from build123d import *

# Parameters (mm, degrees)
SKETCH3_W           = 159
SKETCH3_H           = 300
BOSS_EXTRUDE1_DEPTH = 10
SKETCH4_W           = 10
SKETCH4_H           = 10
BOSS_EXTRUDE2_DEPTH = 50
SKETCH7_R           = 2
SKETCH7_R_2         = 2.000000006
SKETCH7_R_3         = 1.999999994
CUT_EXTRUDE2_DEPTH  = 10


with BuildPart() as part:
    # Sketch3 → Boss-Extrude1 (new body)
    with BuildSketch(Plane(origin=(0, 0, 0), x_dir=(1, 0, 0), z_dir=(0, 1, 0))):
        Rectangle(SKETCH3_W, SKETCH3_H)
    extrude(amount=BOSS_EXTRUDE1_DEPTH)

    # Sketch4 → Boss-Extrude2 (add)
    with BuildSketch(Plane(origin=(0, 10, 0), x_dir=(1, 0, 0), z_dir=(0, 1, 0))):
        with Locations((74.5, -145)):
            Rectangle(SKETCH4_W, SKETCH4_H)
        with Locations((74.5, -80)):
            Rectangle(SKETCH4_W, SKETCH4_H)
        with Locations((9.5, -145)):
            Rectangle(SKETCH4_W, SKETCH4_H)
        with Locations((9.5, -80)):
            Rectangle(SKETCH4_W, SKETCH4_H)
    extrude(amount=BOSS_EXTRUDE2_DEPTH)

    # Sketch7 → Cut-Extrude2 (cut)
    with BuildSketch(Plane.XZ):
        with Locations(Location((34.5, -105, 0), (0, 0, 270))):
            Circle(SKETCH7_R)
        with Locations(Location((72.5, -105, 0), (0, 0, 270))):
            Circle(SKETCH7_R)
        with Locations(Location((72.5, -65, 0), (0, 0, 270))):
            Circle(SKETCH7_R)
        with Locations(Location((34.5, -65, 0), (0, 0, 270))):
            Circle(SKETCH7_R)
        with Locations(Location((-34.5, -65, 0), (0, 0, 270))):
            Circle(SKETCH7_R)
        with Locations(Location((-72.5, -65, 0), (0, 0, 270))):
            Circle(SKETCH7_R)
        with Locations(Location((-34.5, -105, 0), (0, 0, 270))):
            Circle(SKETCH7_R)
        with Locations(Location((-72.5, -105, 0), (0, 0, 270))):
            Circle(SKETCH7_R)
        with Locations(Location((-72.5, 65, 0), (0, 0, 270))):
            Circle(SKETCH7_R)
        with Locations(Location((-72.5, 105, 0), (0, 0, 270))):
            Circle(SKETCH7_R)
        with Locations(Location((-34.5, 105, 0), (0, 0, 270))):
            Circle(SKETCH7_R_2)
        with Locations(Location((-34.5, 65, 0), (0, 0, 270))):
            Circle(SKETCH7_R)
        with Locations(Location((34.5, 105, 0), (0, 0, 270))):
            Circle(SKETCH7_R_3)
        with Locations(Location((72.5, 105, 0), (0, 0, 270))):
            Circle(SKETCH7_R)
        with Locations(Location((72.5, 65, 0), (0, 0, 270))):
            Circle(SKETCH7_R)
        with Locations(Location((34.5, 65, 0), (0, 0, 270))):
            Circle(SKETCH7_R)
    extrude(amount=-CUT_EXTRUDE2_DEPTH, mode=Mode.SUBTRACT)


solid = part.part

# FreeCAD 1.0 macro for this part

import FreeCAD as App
import Part
import Sketcher

V = App.Vector
Q = App.Units.Quantity


def add_polygon(sketch, points):
    """Adds a closed chain of lines whose ends are joined by coincident constraints."""
    first, n = sketch.GeometryCount, len(points)
    for a, b in zip(points, points[1:] + points[:1]):
        sketch.addGeometry(Part.LineSegment(App.Vector(*a, 0), App.Vector(*b, 0)), False)
    for i in range(n):
        sketch.addConstraint(Sketcher.Constraint("Coincident", first + i, 2, first + (i + 1) % n, 1))

doc = App.newDocument("Part")
body = doc.addObject("PartDesign::Body", "Body")

# Sketch on XZ plane
sketch1 = body.newObject("Sketcher::SketchObject", "Sketch")
sketch1.AttachmentSupport = (doc.getObject("XZ_Plane"), [""])
sketch1.MapMode = "FlatFace"
add_polygon(sketch1, [(-80, -150), (-80, 150), (80, 150), (80, -150)])  # lines 0-3
sketch1.addConstraint([
    Sketcher.Constraint("Vertical", 0),
    Sketcher.Constraint("Horizontal", 1),
    Sketcher.Constraint("Vertical", 2),
    Sketcher.Constraint("Horizontal", 3),
    Sketcher.Constraint("Symmetric", 0, 2, 2, 2, -1, 1),
    Sketcher.Constraint("DistanceX", 1, 1, 1, 2, Q("159 mm")),
    Sketcher.Constraint("DistanceY", 0, 1, 0, 2, Q("300 mm")),
])
pad1 = body.newObject("PartDesign::Pad", "Pad")
pad1.Profile = sketch1
pad1.Length = 10
pad1.Reversed = True

# Sketch on XZ plane
sketch2 = body.newObject("Sketcher::SketchObject", "Sketch001")
sketch2.AttachmentSupport = (doc.getObject("XZ_Plane"), [""])
sketch2.MapMode = "FlatFace"
sketch2.AttachmentOffset = App.Placement(V(0, 0, -10), App.Rotation())
add_polygon(sketch2, [(70, 140), (70, 150), (80, 150), (80, 140)])  # lines 0-3
add_polygon(sketch2, [(70, 75), (70, 85), (80, 85), (80, 75)])  # lines 4-7
add_polygon(sketch2, [(4, 140), (4, 150), (14, 150), (14, 140)])  # lines 8-11
add_polygon(sketch2, [(4, 75), (4, 85), (14, 85), (14, 75)])  # lines 12-15
sketch2.addConstraint([
    Sketcher.Constraint("Vertical", 0),
    Sketcher.Constraint("Horizontal", 1),
    Sketcher.Constraint("Vertical", 2),
    Sketcher.Constraint("Horizontal", 3),
    Sketcher.Constraint("Vertical", 4),
    Sketcher.Constraint("Horizontal", 5),
    Sketcher.Constraint("Vertical", 6),
    Sketcher.Constraint("Horizontal", 7),
    Sketcher.Constraint("Vertical", 8),
    Sketcher.Constraint("Horizontal", 9),
    Sketcher.Constraint("Vertical", 10),
    Sketcher.Constraint("Horizontal", 11),
    Sketcher.Constraint("Vertical", 12),
    Sketcher.Constraint("Horizontal", 13),
    Sketcher.Constraint("Vertical", 14),
    Sketcher.Constraint("Horizontal", 15),
    Sketcher.Constraint("Horizontal", 1, 2, 8, 2),
    Sketcher.Constraint("Horizontal", 3, 2, 10, 2),
    Sketcher.Constraint("Horizontal", 5, 2, 12, 2),
    Sketcher.Constraint("Horizontal", 7, 2, 14, 2),
    Sketcher.Constraint("Vertical", 3, 2, 4, 2),
    Sketcher.Constraint("Vertical", 2, 2, 5, 2),
    Sketcher.Constraint("Vertical", 11, 2, 12, 2),
    Sketcher.Constraint("Vertical", 10, 2, 13, 2),
    Sketcher.Constraint("Equal", 7, 9),
    Sketcher.Constraint("Equal", 15, 0),
    Sketcher.Constraint("Equal", 2, 4),
    Sketcher.Constraint("DistanceX", 1, 1, 1, 2, Q("10 mm")),
    Sketcher.Constraint("DistanceY", -1, 1, 0, 2, Q("150 mm")),
    Sketcher.Constraint("DistanceY", -1, 1, 4, 2, Q("85 mm")),
    Sketcher.Constraint("DistanceX", 8, 2, 0, 2, Q("65 mm")),
    Sketcher.Constraint("DistanceX", -1, 1, 0, 2, Q("69.5 mm")),
])
pad2 = body.newObject("PartDesign::Pad", "Pad001")
pad2.Profile = sketch2
pad2.Length = 50
pad2.Reversed = True

# Sketch on XZ plane
sketch3 = body.newObject("Sketcher::SketchObject", "Sketch002")
sketch3.AttachmentSupport = (doc.getObject("XZ_Plane"), [""])
sketch3.MapMode = "FlatFace"
sketch3.addGeometry([
    Part.Circle(V(34.5, -105, 0), V(0, 0, 1), 2),  # 0
    Part.Circle(V(72.5, -105, 0), V(0, 0, 1), 2),  # 1
    Part.Circle(V(72.5, -65, 0), V(0, 0, 1), 2),  # 2
    Part.Circle(V(34.5, -65, 0), V(0, 0, 1), 2),  # 3
    Part.Circle(V(-34.5, -65, 0), V(0, 0, 1), 2),  # 4
    Part.Circle(V(-72.5, -65, 0), V(0, 0, 1), 2),  # 5
    Part.Circle(V(-34.5, -105, 0), V(0, 0, 1), 2),  # 6
    Part.Circle(V(-72.5, -105, 0), V(0, 0, 1), 2),  # 7
    Part.Circle(V(-72.5, 65, 0), V(0, 0, 1), 2),  # 8
    Part.Circle(V(-72.5, 105, 0), V(0, 0, 1), 2),  # 9
    Part.Circle(V(-34.5, 105, 0), V(0, 0, 1), 2),  # 10
    Part.Circle(V(-34.5, 65, 0), V(0, 0, 1), 2),  # 11
    Part.Circle(V(34.5, 105, 0), V(0, 0, 1), 2),  # 12
    Part.Circle(V(72.5, 105, 0), V(0, 0, 1), 2),  # 13
    Part.Circle(V(72.5, 65, 0), V(0, 0, 1), 2),  # 14
    Part.Circle(V(34.5, 65, 0), V(0, 0, 1), 2),  # 15
], False)
sketch3.addConstraint([
    Sketcher.Constraint("Equal", 0, 1),
    Sketcher.Constraint("Equal", 1, 2),
    Sketcher.Constraint("Equal", 2, 3),
    Sketcher.Constraint("Equal", 3, 4),
    Sketcher.Constraint("Equal", 4, 5),
    Sketcher.Constraint("Equal", 5, 6),
    Sketcher.Constraint("Equal", 6, 7),
    Sketcher.Constraint("Equal", 7, 8),
    Sketcher.Constraint("Equal", 8, 9),
    Sketcher.Constraint("Equal", 9, 10),
    Sketcher.Constraint("Equal", 10, 11),
    Sketcher.Constraint("Equal", 11, 12),
    Sketcher.Constraint("Equal", 12, 13),
    Sketcher.Constraint("Equal", 13, 14),
    Sketcher.Constraint("Equal", 14, 15),
    Sketcher.Constraint("Symmetric", 2, 3, 8, 3, -1, 1),
    Sketcher.Constraint("Symmetric", 1, 3, 9, 3, -1, 1),
    Sketcher.Constraint("Symmetric", 0, 3, 10, 3, -1, 1),
    Sketcher.Constraint("Symmetric", 3, 3, 11, 3, -1, 1),
    Sketcher.Constraint("Symmetric", 6, 3, 12, 3, -1, 1),
    Sketcher.Constraint("Symmetric", 7, 3, 13, 3, -1, 1),
    Sketcher.Constraint("Symmetric", 5, 3, 14, 3, -1, 1),
    Sketcher.Constraint("Symmetric", 4, 3, 15, 3, -1, 1),
    Sketcher.Constraint("Symmetric", 3, 3, 4, 3, -2),
    Sketcher.Constraint("Symmetric", 2, 3, 5, 3, -2),
    Sketcher.Constraint("Symmetric", 0, 3, 6, 3, -2),
    Sketcher.Constraint("Symmetric", 1, 3, 7, 3, -2),
    Sketcher.Constraint("Horizontal", 0, 3, 1, 3),
    Sketcher.Constraint("Horizontal", 2, 3, 3, 3),
    Sketcher.Constraint("Vertical", 1, 3, 2, 3),
    Sketcher.Constraint("Vertical", 0, 3, 3, 3),
    Sketcher.Constraint("Diameter", 0, Q("4 mm")),
    Sketcher.Constraint("DistanceY", 0, 3, -1, 1, Q("105 mm")),
    Sketcher.Constraint("DistanceY", 2, 3, -1, 1, Q("65 mm")),
    Sketcher.Constraint("DistanceX", 0, 3, 1, 3, Q("38 mm")),
    Sketcher.Constraint("DistanceX", 4, 3, 3, 3, Q("69 mm")),
])
pocket1 = body.newObject("PartDesign::Pocket", "Pocket")
pocket1.Profile = sketch3
pocket1.Length = 10

doc.recompute()
